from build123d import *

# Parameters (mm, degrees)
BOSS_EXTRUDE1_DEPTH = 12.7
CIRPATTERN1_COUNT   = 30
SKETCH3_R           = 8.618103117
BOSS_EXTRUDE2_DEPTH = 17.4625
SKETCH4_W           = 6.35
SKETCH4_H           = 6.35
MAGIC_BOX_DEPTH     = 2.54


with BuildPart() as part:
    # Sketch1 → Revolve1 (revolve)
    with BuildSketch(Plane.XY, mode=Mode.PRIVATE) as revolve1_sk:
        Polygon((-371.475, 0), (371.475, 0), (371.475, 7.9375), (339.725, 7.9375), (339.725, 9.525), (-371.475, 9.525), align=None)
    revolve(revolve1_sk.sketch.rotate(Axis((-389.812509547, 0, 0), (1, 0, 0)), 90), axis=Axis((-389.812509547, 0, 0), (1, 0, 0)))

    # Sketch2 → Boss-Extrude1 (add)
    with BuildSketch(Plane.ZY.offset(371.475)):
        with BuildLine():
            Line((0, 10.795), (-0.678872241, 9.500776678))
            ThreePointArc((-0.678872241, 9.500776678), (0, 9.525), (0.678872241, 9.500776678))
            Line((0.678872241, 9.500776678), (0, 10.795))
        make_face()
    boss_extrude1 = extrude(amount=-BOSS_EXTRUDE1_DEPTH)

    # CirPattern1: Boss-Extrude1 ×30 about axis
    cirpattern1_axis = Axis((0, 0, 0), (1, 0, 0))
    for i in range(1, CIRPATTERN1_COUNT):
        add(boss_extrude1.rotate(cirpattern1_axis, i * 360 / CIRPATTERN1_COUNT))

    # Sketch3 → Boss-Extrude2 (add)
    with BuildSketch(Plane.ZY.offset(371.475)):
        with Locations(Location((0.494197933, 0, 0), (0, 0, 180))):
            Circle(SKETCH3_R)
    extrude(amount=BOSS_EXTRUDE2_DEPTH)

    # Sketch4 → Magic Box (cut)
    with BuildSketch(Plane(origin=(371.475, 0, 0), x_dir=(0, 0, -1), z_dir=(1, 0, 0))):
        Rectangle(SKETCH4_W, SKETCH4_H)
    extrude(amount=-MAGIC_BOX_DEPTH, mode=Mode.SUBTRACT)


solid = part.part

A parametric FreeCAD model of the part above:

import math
import FreeCAD as App
import Part
import Sketcher

V = App.Vector
Q = App.Units.Quantity

doc = App.newDocument("Part")
body = doc.addObject("PartDesign::Body", "Body")

sketch1 = body.newObject("Sketcher::SketchObject", "Sketch")
sketch1.AttachmentSupport = (doc.getObject("XY_Plane"), [""])
sketch1.MapMode = "FlatFace"
sketch1.addGeometry(Part.LineSegment(V(-371.475, 0, 0), V(371.475, 0, 0)), False)
sketch1.addGeometry(Part.LineSegment(V(371.475, 0, 0), V(371.475, 7.9375, 0)), False)
sketch1.addGeometry(Part.LineSegment(V(371.475, 7.9375, 0), V(339.725, 7.9375, 0)), False)
sketch1.addGeometry(Part.LineSegment(V(339.725, 7.9375, 0), V(339.725, 9.525, 0)), False)
sketch1.addGeometry(Part.LineSegment(V(339.725, 9.525, 0), V(-371.475, 9.525, 0)), False)
sketch1.addGeometry(Part.LineSegment(V(-371.475, 9.525, 0), V(-371.475, 0, 0)), False)
sketch1.addConstraint(Sketcher.Constraint("Coincident", 0, 2, 1, 1))
sketch1.addConstraint(Sketcher.Constraint("Coincident", 1, 2, 2, 1))
sketch1.addConstraint(Sketcher.Constraint("Coincident", 2, 2, 3, 1))
sketch1.addConstraint(Sketcher.Constraint("Coincident", 3, 2, 4, 1))
sketch1.addConstraint(Sketcher.Constraint("Coincident", 4, 2, 5, 1))
sketch1.addConstraint(Sketcher.Constraint("Coincident", 5, 2, 0, 1))
sketch1.addConstraint(Sketcher.Constraint("Horizontal", 0))
sketch1.addConstraint(Sketcher.Constraint("Vertical", 1))
sketch1.addConstraint(Sketcher.Constraint("Horizontal", 2))
sketch1.addConstraint(Sketcher.Constraint("Vertical", 3))
sketch1.addConstraint(Sketcher.Constraint("Horizontal", 4))
sketch1.addConstraint(Sketcher.Constraint("Vertical", 5))
sketch1.addConstraint(Sketcher.Constraint("Symmetric", 0, 2, 5, 2, -1, 1))
sketch1.addConstraint(Sketcher.Constraint("DistanceX", 4, 2, 4, 1, Q("28 in")))
sketch1.addConstraint(Sketcher.Constraint("DistanceX", 0, 1, 0, 2, Q("29.25 in")))
sketch1.addConstraint(Sketcher.Constraint("DistanceY", 1, 1, 1, 2, Q("0.3125 in")))
sketch1.addConstraint(Sketcher.Constraint("DistanceY", 3, 1, 3, 2, Q("0.0625 in")))
revolution = body.newObject("PartDesign::Revolution", "Revolution")
revolution.Profile = sketch1
revolution.ReferenceAxis = (sketch1, ["H_Axis"])
revolution.Angle = 360

sketch2 = body.newObject("Sketcher::SketchObject", "Sketch001")
sketch2.AttachmentSupport = (doc.getObject("YZ_Plane"), [""])
sketch2.MapMode = "FlatFace"
sketch2.AttachmentOffset = App.Placement(V(0, 0, -14.625 * 25.4), App.Rotation())
sketch2.addGeometry(Part.LineSegment(V(10.795, 0, 0), V(9.500777, -0.678872, 0)), False)
sketch2.addGeometry(Part.ArcOfCircle(Part.Circle(V(0, 0, 0), V(0, 0, 1), 9.525), math.radians(-4.087089), math.radians(4.087089)), False)
sketch2.addGeometry(Part.LineSegment(V(9.500777, 0.678872, 0), V(10.795, 0, 0)), False)
sketch2.addConstraint(Sketcher.Constraint("Coincident", 0, 2, 1, 1))
sketch2.addConstraint(Sketcher.Constraint("Coincident", 1, 2, 2, 1))
sketch2.addConstraint(Sketcher.Constraint("Coincident", 2, 2, 0, 1))
sketch2.addConstraint(Sketcher.Constraint("Coincident", 1, 3, -1, 1))
sketch2.addConstraint(Sketcher.Constraint("PointOnObject", 2, 2, -1))
sketch2.addConstraint(Sketcher.Constraint("Vertical", 0, 2, 1, 2))
sketch2.addConstraint(Sketcher.Constraint("Radius", 1, Q("0.375 in")))
sketch2.addConstraint(Sketcher.Constraint("DistanceX", -1, 1, 2, 2, Q("0.425 in")))
sketch2.addConstraint(Sketcher.Constraint("Distance", 0, 1.461466))
pad1 = body.newObject("PartDesign::Pad", "Pad")
pad1.Profile = sketch2
pad1.Length = Q("0.5 in")
doc.recompute()

polarpattern = body.newObject("PartDesign::PolarPattern", "PolarPattern")
polarpattern.Originals = [pad1]
polarpattern.Axis = (doc.getObject("X_Axis"), [""])
polarpattern.Angle = 360
polarpattern.Occurrences = 30
body.Tip = polarpattern

sketch3 = body.newObject("Sketcher::SketchObject", "Sketch002")
sketch3.AttachmentSupport = (doc.getObject("YZ_Plane"), [""])
sketch3.MapMode = "FlatFace"
sketch3.AttachmentOffset = App.Placement(V(0, 0, -14.625 * 25.4), App.Rotation())
sketch3.addGeometry(Part.Circle(V(0, 0.494198, 0), V(0, 0, 1), 8.618103), False)
sketch3.addConstraint(Sketcher.Constraint("PointOnObject", 0, 3, -2))
sketch3.addConstraint(Sketcher.Constraint("Diameter", 0, 17.236206))
sketch3.addConstraint(Sketcher.Constraint("DistanceY", -1, 1, 0, 3, 0.494198))
pad2 = body.newObject("PartDesign::Pad", "Pad001")
pad2.Profile = sketch3
pad2.Length = Q("0.6875 in")
pad2.Reversed = True

sketch4 = body.newObject("Sketcher::SketchObject", "Sketch003")
sketch4.AttachmentSupport = (doc.getObject("YZ_Plane"), [""])
sketch4.MapMode = "FlatFace"
sketch4.AttachmentOffset = App.Placement(V(0, 0, 14.625 * 25.4), App.Rotation())
sketch4.addGeometry(Part.LineSegment(V(3.175, 3.175, 0), V(-3.175, 3.175, 0)), False)
sketch4.addGeometry(Part.LineSegment(V(-3.175, 3.175, 0), V(-3.175, -3.175, 0)), False)
sketch4.addGeometry(Part.LineSegment(V(-3.175, -3.175, 0), V(3.175, -3.175, 0)), False)
sketch4.addGeometry(Part.LineSegment(V(3.175, -3.175, 0), V(3.175, 3.175, 0)), False)
sketch4.addConstraint(Sketcher.Constraint("Coincident", 0, 2, 1, 1))
sketch4.addConstraint(Sketcher.Constraint("Coincident", 1, 2, 2, 1))
sketch4.addConstraint(Sketcher.Constraint("Coincident", 2, 2, 3, 1))
sketch4.addConstraint(Sketcher.Constraint("Coincident", 3, 2, 0, 1))
sketch4.addConstraint(Sketcher.Constraint("Horizontal", 0))
sketch4.addConstraint(Sketcher.Constraint("Vertical", 1))
sketch4.addConstraint(Sketcher.Constraint("Horizontal", 2))
sketch4.addConstraint(Sketcher.Constraint("Vertical", 3))
sketch4.addConstraint(Sketcher.Constraint("Symmetric", 0, 2, 2, 2, -1, 1))
sketch4.addConstraint(Sketcher.Constraint("Equal", 2, 1))
sketch4.addConstraint(Sketcher.Constraint("DistanceX", 0, 2, 0, 1, Q("0.25 in")))
pocket1 = body.newObject("PartDesign::Pocket", "Pocket")
pocket1.Profile = sketch4
pocket1.Length = Q("0.1 in")

doc.recompute()
